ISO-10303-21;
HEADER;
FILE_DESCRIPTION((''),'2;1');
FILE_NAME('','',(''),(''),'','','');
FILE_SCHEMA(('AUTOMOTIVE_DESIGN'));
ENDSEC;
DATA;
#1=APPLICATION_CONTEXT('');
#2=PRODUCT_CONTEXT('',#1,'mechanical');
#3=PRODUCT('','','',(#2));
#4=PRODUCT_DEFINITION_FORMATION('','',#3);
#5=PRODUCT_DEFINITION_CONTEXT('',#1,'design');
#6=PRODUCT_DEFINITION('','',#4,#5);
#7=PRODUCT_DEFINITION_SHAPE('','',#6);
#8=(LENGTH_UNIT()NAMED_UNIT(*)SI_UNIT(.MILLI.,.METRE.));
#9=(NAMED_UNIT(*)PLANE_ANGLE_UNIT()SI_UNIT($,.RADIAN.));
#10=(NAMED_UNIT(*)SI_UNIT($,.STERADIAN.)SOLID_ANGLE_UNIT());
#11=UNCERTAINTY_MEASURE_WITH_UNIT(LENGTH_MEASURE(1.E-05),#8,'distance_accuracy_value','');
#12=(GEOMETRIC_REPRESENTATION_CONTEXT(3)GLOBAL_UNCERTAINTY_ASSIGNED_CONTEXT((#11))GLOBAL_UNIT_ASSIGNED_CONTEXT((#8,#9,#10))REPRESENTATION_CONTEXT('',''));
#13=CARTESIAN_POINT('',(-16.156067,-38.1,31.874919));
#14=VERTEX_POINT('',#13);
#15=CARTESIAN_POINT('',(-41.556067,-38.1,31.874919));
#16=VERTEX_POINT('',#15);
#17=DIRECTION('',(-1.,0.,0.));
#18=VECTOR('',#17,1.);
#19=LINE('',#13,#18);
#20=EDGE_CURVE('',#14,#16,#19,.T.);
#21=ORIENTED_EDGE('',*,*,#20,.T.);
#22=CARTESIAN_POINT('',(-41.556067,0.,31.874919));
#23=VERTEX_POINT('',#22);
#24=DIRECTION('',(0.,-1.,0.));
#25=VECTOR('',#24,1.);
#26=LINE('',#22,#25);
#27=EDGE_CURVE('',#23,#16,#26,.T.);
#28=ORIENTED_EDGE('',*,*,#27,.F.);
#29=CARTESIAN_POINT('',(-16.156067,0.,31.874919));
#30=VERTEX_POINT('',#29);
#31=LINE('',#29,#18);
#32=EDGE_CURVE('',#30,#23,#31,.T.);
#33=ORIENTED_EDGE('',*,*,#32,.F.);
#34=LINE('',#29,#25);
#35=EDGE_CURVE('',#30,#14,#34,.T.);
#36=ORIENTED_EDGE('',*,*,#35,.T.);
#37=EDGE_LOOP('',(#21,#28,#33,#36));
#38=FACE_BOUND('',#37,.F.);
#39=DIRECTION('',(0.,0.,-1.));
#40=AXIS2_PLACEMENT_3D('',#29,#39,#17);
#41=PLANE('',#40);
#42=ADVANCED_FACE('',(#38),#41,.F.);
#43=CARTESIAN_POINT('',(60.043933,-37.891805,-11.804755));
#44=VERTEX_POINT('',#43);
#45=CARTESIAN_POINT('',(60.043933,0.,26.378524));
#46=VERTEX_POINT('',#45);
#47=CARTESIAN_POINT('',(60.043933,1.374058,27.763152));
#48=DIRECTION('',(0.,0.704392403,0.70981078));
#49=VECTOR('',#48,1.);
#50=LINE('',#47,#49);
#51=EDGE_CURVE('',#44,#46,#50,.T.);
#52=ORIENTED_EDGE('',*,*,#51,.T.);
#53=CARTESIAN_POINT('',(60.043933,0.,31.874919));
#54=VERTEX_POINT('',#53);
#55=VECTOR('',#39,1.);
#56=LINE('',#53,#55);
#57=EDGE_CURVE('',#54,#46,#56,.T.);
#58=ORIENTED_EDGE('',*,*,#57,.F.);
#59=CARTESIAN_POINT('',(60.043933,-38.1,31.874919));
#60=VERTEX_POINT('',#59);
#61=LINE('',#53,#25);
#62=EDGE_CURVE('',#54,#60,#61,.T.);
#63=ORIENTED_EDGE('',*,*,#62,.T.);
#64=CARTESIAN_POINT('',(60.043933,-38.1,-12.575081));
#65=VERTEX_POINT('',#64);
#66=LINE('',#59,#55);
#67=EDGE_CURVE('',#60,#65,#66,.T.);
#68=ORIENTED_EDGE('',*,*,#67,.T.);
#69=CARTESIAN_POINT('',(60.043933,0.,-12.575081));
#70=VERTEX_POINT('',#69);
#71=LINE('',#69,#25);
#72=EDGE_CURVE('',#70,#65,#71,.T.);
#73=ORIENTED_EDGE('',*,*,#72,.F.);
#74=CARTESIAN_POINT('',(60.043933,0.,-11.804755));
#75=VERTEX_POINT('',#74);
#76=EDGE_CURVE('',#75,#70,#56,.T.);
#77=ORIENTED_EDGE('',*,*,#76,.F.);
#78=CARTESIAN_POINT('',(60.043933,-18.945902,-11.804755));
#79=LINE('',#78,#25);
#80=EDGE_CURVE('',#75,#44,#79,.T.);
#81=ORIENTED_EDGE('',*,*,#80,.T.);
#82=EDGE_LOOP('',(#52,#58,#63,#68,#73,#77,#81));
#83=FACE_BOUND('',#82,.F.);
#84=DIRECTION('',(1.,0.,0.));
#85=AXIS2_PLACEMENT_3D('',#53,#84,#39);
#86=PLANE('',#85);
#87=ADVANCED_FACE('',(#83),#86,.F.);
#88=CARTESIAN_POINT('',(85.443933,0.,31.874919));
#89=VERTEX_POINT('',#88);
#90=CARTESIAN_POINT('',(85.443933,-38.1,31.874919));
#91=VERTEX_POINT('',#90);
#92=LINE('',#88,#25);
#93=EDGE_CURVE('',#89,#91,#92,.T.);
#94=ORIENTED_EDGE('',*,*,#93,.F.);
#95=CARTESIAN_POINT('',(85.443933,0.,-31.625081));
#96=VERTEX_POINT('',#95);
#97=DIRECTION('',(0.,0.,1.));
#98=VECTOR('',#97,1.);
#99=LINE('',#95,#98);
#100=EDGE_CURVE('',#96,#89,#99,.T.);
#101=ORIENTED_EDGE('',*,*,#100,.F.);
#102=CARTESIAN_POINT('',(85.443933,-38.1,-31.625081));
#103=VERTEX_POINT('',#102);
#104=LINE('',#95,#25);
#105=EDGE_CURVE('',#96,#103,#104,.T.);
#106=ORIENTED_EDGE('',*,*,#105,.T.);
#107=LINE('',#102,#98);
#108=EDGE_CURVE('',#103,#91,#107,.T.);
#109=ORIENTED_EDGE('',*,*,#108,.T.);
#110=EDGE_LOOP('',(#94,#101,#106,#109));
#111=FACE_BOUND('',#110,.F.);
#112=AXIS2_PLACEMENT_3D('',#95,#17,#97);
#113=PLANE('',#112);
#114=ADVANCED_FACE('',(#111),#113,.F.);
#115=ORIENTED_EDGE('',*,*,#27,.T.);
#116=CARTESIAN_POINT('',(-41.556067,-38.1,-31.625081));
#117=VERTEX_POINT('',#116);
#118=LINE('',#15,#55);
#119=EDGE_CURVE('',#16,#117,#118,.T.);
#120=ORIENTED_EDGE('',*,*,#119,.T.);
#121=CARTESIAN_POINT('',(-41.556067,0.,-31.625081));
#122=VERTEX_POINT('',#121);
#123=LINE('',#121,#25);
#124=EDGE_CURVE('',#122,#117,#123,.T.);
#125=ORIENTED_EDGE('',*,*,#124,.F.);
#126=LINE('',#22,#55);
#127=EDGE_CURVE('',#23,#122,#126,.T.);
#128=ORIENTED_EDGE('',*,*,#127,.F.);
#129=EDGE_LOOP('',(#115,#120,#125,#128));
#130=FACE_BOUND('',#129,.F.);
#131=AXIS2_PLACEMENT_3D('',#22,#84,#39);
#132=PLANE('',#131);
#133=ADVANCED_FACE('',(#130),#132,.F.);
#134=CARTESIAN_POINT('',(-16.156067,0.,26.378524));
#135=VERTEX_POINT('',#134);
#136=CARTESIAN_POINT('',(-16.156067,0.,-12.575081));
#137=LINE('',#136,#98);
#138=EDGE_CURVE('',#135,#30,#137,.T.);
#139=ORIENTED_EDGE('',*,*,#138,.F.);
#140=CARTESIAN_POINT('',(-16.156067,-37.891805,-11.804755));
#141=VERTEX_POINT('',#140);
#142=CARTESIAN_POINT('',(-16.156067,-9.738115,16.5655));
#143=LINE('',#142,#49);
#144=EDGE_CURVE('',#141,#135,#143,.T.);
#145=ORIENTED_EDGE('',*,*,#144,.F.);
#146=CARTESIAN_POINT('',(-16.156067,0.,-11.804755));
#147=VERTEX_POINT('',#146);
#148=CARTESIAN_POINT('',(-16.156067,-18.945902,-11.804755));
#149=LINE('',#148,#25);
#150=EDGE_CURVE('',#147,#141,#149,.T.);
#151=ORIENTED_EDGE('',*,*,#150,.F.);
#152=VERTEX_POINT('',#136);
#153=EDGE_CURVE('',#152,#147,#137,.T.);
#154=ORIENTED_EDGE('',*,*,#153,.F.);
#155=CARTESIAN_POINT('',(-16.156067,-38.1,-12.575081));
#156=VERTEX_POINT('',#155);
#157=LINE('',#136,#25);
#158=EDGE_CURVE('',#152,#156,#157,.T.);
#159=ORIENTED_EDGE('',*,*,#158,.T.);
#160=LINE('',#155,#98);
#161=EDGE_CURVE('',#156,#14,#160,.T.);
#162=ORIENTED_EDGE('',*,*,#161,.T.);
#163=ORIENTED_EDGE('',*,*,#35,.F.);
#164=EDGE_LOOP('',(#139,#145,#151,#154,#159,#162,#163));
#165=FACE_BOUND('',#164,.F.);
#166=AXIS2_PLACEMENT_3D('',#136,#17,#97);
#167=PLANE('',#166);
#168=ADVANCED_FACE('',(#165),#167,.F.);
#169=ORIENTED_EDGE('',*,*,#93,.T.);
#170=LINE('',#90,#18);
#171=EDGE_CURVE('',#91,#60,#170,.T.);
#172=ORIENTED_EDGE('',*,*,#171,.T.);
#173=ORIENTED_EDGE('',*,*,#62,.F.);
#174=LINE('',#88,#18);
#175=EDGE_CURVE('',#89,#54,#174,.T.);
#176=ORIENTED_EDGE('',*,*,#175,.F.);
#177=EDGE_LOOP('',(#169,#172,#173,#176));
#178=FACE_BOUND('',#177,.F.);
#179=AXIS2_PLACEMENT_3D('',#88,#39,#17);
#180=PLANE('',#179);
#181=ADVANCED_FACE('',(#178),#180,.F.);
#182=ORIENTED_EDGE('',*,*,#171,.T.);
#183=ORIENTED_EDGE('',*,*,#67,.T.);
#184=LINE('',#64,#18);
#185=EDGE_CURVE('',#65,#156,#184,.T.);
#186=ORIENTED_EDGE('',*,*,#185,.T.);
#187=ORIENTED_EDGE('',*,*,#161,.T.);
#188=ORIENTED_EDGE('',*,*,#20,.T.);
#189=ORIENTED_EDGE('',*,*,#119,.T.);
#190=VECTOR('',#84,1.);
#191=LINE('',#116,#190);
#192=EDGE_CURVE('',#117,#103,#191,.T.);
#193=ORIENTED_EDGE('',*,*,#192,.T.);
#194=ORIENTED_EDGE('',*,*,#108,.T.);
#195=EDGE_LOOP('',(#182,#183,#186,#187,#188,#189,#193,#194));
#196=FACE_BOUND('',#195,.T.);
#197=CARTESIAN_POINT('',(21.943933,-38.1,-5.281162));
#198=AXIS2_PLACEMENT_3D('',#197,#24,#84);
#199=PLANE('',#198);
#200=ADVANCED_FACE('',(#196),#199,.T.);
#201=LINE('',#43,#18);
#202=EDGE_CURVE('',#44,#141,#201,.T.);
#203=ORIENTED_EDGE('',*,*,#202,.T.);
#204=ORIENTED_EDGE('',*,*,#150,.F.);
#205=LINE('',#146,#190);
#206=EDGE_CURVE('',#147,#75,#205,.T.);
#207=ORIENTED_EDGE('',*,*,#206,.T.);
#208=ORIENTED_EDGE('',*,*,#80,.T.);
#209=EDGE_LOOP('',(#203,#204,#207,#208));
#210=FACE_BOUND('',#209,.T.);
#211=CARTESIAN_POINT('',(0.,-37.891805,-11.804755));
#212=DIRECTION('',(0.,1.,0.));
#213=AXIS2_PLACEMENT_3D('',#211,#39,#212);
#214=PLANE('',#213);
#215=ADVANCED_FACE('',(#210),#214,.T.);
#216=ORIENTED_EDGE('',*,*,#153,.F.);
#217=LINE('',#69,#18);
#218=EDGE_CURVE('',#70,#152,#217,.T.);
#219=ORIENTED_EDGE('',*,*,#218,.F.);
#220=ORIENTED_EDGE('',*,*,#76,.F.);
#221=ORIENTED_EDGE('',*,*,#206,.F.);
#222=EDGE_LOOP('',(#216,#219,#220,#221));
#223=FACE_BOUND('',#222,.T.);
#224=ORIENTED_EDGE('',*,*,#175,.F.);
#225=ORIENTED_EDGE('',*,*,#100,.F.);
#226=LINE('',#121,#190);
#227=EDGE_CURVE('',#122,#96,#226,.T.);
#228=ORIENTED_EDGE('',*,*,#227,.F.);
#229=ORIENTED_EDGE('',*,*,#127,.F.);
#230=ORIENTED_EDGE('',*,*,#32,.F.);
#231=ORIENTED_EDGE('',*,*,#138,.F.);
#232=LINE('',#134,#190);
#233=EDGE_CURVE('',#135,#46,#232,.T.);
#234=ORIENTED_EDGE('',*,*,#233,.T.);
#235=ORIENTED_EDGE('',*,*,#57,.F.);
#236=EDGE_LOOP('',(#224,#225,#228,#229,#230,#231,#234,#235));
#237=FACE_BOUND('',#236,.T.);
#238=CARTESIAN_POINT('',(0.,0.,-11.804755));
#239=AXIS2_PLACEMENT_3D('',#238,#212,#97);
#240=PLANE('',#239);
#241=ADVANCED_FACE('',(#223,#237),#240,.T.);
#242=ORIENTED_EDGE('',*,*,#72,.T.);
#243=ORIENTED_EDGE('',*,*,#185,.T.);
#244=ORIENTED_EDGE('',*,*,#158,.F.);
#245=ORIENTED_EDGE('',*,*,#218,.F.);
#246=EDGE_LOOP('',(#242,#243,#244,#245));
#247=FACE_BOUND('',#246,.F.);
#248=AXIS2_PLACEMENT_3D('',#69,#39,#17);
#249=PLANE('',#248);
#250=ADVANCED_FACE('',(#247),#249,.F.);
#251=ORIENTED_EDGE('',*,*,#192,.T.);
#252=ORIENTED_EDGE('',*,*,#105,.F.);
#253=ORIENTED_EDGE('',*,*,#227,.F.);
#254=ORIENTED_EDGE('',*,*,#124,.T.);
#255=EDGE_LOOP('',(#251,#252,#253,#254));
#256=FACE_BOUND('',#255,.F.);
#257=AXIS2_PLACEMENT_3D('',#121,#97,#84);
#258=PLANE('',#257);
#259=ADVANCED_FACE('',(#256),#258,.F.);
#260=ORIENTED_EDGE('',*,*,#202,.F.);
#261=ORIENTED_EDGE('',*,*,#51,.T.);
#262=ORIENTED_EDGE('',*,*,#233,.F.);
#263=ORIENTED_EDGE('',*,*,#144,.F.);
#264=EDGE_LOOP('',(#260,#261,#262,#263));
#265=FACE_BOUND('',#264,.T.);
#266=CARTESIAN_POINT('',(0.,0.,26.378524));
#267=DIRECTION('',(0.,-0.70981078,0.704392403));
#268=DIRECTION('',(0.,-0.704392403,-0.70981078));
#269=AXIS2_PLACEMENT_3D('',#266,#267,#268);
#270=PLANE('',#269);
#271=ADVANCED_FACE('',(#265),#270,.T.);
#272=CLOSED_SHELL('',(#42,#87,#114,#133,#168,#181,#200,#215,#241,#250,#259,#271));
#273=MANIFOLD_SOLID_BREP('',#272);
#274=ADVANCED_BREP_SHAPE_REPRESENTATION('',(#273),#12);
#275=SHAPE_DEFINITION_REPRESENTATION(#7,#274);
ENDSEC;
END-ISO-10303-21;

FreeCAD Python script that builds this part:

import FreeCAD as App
import Part
import Sketcher

V = App.Vector
Q = App.Units.Quantity


def add_polygon(sketch, points):
    """Adds a closed chain of lines whose ends are joined by coincident constraints."""
    first, n = sketch.GeometryCount, len(points)
    for a, b in zip(points, points[1:] + points[:1]):
        sketch.addGeometry(Part.LineSegment(App.Vector(*a, 0), App.Vector(*b, 0)), False)
    for i in range(n):
        sketch.addConstraint(Sketcher.Constraint("Coincident", first + i, 2, first + (i + 1) % n, 1))

doc = App.newDocument("Part")
body = doc.addObject("PartDesign::Body", "Body")

sketch1 = body.newObject("Sketcher::SketchObject", "Sketch")
sketch1.AttachmentSupport = (doc.getObject("XZ_Plane"), [""])
sketch1.MapMode = "FlatFace"
add_polygon(sketch1, [(-16.156067, 31.874919), (-41.556067, 31.874919), (-41.556067, -31.625081), (85.443933, -31.625081), (85.443933, 31.874919), (60.043933, 31.874919), (60.043933, -12.575081), (-16.156067, -12.575081)])
sketch1.addConstraint([
    Sketcher.Constraint("Horizontal", 0),
    Sketcher.Constraint("Vertical", 1),
    Sketcher.Constraint("Horizontal", 2),
    Sketcher.Constraint("Vertical", 3),
    Sketcher.Constraint("Horizontal", 4),
    Sketcher.Constraint("Vertical", 5),
    Sketcher.Constraint("Horizontal", 6),
    Sketcher.Constraint("Vertical", 7),
    Sketcher.Constraint("Horizontal", 0, 2, 3, 2),
    Sketcher.Constraint("Equal", 0, 4),
    Sketcher.Constraint("DistanceX", 0, 2, 0, 1, Q("1 in")),
    Sketcher.Constraint("DistanceX", 2, 1, 2, 2, Q("5 in")),
    Sketcher.Constraint("DistanceY", 1, 2, 1, 1, Q("2.5 in")),
    Sketcher.Constraint("DistanceY", 5, 2, 5, 1, Q("1.75 in")),
    Sketcher.Constraint("DistanceY", -1, 1, 0, 2, 31.874919),
    Sketcher.Constraint("DistanceX", 0, 2, -1, 1, 41.556067),
])
pad1 = body.newObject("PartDesign::Pad", "Pad")
pad1.Profile = sketch1
pad1.Length = Q("1.5 in")

sketch2 = body.newObject("Sketcher::SketchObject", "Sketch001")
sketch2.AttachmentSupport = (doc.getObject("YZ_Plane"), [""])
sketch2.MapMode = "FlatFace"
add_polygon(sketch2, [(-37.891805, -11.804755), (0, -11.804755), (0, 26.378524)])
sketch2.addConstraint([
    Sketcher.Constraint("Horizontal", 0),
    Sketcher.Constraint("Vertical", 1),
    Sketcher.Constraint("PointOnObject", 0, 2, -2),
    Sketcher.Constraint("DistanceY", 1, 1, 1, 2, 38.183279),
    Sketcher.Constraint("DistanceX", 0, 1, 0, 2, 37.891805),
    Sketcher.Constraint("DistanceY", 0, 2, -1, 1, 11.804755),
])
pad2 = body.newObject("PartDesign::Pad", "Pad001")
pad2.Profile = sketch2
pad2.Type = "TwoLengths"
pad2.Length = Q("3 in")
pad2.Length2 = Q("1 in")

doc.recompute()
